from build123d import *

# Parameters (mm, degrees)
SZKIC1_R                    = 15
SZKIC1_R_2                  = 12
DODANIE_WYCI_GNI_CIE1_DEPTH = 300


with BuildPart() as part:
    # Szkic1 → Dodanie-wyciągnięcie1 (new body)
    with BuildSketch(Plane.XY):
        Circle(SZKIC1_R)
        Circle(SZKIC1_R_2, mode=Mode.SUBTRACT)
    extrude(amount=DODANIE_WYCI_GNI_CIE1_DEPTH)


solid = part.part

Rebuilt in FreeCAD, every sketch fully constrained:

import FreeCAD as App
import Part
import Sketcher
from FreeCAD import Vector

doc = App.newDocument("Part")
body = doc.addObject("PartDesign::Body", "Body")

sketch1 = doc.addObject("Sketcher::SketchObject", "Sketch")
body.addObject(sketch1)
sketch1.AttachmentSupport = (doc.XY_Plane, [""])
sketch1.MapMode = "FlatFace"
sketch1.addGeometry([
    Part.Circle(Vector(0, 0, 0), Vector(0, 0, 1), 15),
    Part.Circle(Vector(0, 0, 0), Vector(0, 0, 1), 12),
], False)
sketch1.addConstraint([
    Sketcher.Constraint("Coincident", 0, 3, -1, 1),
    Sketcher.Constraint("Coincident", 1, 3, -1, 1),
    Sketcher.Constraint("Diameter", 0, 30.0),
    Sketcher.Constraint("Diameter", 1, 24.0),
])
pad1 = doc.addObject("PartDesign::Pad", "Pad")
body.addObject(pad1)
pad1.Profile = sketch1
pad1.Length = 300

doc.recompute()
